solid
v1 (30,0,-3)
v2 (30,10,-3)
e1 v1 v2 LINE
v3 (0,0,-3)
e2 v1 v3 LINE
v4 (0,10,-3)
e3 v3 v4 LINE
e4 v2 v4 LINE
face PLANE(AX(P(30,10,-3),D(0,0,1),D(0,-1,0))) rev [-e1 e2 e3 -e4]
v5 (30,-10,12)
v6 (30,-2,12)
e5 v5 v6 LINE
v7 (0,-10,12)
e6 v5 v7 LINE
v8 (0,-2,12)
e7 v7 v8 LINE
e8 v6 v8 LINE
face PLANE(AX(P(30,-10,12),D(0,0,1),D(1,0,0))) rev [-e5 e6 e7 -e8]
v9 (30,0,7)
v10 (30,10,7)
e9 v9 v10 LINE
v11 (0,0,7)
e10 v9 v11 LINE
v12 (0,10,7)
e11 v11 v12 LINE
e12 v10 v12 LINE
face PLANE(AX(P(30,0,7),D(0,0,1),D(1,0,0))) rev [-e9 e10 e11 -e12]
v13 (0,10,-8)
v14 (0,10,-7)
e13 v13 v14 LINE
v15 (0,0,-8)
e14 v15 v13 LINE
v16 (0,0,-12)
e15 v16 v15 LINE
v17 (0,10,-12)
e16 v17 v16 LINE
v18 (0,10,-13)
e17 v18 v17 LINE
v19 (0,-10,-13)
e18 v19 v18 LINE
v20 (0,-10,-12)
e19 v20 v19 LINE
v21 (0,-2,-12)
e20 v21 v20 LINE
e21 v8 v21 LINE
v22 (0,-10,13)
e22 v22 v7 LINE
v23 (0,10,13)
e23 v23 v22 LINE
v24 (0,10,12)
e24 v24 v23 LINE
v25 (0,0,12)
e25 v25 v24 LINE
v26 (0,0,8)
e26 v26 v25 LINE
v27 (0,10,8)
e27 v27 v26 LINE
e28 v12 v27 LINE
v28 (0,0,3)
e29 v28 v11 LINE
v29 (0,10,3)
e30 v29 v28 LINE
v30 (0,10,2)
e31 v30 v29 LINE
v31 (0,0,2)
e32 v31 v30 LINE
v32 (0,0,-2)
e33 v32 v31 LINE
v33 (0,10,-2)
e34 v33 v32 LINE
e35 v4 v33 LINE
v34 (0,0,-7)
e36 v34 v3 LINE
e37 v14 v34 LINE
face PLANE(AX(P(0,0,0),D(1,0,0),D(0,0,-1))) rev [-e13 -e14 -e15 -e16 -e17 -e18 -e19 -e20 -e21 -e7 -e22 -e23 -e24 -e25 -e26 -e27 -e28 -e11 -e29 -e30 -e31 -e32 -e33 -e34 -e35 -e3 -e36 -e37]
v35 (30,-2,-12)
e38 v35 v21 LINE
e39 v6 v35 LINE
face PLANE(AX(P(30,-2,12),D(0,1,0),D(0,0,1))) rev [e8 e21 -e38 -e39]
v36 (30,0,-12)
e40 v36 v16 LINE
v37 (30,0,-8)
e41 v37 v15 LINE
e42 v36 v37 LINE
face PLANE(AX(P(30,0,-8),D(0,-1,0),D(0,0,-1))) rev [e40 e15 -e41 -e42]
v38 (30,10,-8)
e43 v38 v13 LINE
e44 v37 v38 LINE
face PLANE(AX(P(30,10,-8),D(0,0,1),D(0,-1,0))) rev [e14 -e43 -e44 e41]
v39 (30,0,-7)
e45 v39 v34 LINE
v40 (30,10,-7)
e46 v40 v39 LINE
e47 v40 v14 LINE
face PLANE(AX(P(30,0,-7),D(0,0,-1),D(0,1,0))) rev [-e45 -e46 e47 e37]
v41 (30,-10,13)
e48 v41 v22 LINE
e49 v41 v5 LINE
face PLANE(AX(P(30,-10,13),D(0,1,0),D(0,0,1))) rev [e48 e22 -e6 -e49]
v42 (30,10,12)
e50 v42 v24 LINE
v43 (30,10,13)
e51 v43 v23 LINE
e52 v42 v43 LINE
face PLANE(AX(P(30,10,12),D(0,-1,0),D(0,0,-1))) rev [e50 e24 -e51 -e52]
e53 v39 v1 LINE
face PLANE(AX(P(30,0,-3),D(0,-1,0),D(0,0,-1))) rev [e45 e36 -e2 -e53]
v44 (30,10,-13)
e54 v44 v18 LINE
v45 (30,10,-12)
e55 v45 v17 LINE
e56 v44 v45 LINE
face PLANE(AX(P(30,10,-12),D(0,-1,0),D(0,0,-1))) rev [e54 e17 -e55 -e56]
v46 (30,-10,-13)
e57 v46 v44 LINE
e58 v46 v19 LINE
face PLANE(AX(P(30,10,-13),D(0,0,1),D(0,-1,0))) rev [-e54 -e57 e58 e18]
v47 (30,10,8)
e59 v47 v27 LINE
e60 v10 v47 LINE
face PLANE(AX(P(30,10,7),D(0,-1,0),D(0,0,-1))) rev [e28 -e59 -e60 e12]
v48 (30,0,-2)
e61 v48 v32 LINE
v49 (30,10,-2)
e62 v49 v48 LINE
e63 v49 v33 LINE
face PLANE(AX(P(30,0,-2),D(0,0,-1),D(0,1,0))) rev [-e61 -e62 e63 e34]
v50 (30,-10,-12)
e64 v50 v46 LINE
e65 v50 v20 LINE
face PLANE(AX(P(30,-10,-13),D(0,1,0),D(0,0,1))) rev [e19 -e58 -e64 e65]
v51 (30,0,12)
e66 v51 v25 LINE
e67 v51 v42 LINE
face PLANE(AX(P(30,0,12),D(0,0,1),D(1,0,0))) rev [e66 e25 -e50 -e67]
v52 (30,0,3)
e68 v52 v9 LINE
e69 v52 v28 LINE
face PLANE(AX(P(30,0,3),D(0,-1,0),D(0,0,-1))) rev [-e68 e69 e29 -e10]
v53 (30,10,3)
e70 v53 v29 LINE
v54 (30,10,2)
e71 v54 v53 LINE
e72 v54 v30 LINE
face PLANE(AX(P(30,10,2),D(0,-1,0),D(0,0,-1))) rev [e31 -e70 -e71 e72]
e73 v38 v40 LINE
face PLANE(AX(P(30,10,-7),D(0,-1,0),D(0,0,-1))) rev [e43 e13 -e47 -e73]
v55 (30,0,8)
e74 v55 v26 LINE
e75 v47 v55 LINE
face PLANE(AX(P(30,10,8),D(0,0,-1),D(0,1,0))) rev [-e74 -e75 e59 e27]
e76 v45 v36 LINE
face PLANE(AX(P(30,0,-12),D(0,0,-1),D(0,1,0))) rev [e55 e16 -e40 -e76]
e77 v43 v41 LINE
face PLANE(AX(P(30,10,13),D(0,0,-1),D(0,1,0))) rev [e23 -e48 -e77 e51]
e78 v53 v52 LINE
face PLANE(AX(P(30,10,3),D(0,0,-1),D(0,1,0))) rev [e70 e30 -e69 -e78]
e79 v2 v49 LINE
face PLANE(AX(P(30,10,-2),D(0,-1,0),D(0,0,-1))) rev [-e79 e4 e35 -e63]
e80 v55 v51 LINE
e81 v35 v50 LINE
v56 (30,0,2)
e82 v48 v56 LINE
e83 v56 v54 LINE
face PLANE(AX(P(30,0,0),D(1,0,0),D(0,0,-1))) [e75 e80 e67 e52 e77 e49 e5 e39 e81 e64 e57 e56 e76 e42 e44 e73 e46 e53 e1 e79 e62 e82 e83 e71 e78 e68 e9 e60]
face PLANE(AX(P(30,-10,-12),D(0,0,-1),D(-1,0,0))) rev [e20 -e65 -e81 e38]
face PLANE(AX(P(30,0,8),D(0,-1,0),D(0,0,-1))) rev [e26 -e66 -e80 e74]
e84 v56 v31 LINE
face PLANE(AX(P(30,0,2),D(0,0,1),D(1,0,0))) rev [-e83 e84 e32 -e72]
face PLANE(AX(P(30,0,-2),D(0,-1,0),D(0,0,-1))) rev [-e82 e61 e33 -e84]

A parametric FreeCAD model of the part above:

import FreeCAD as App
import Part
import Sketcher


def add_polygon(sketch, points):
    """Adds a closed chain of lines whose ends are joined by coincident constraints."""
    first, n = sketch.GeometryCount, len(points)
    for a, b in zip(points, points[1:] + points[:1]):
        sketch.addGeometry(Part.LineSegment(App.Vector(*a, 0), App.Vector(*b, 0)), False)
    for i in range(n):
        sketch.addConstraint(Sketcher.Constraint("Coincident", first + i, 2, first + (i + 1) % n, 1))

doc = App.newDocument("Part")
body = doc.addObject("PartDesign::Body", "Body")

sketch1 = doc.addObject("Sketcher::SketchObject", "Sketch")
body.addObject(sketch1)
sketch1.AttachmentSupport = (doc.YZ_Plane, [""])
sketch1.MapMode = "FlatFace"
add_polygon(sketch1, [(0, -2), (0, 2), (10, 2), (10, 3), (0, 3), (0, 7), (10, 7), (10, 8), (0, 8), (0, 12), (10, 12), (10, 13), (-10, 13), (-10, 12), (-2, 12), (-2, -12), (-10, -12), (-10, -13), (10, -13), (10, -12), (0, -12), (0, -8), (10, -8), (10, -7), (0, -7), (0, -3), (10, -3), (10, -2)])
sketch1.addConstraint([
    Sketcher.Constraint("Vertical", 0),
    Sketcher.Constraint("Horizontal", 1),
    Sketcher.Constraint("Vertical", 2),
    Sketcher.Constraint("Horizontal", 3),
    Sketcher.Constraint("Vertical", 4),
    Sketcher.Constraint("Horizontal", 5),
    Sketcher.Constraint("Vertical", 6),
    Sketcher.Constraint("Horizontal", 7),
    Sketcher.Constraint("Vertical", 8),
    Sketcher.Constraint("Horizontal", 9),
    Sketcher.Constraint("Vertical", 10),
    Sketcher.Constraint("Horizontal", 11),
    Sketcher.Constraint("Vertical", 12),
    Sketcher.Constraint("Horizontal", 13),
    Sketcher.Constraint("Vertical", 14),
    Sketcher.Constraint("Horizontal", 15),
    Sketcher.Constraint("Vertical", 16),
    Sketcher.Constraint("Horizontal", 17),
    Sketcher.Constraint("Vertical", 18),
    Sketcher.Constraint("Horizontal", 19),
    Sketcher.Constraint("Vertical", 20),
    Sketcher.Constraint("Horizontal", 21),
    Sketcher.Constraint("Vertical", 22),
    Sketcher.Constraint("Horizontal", 23),
    Sketcher.Constraint("Vertical", 24),
    Sketcher.Constraint("Horizontal", 25),
    Sketcher.Constraint("Vertical", 26),
    Sketcher.Constraint("Horizontal", 27),
    Sketcher.Constraint("Symmetric", 9, 2, 15, 2, -1, 1),
    Sketcher.Constraint("Symmetric", 11, 2, 17, 2, -1, 1),
    Sketcher.Constraint("Symmetric", 8, 2, 19, 2, -1, 1),
    Sketcher.Constraint("Symmetric", 4, 2, 23, 2, -1, 1),
    Sketcher.Constraint("Symmetric", 0, 2, 27, 2, -1, 1),
    Sketcher.Constraint("Symmetric", 9, 2, 12, 2, -2),
    Sketcher.Constraint("Symmetric", 7, 2, 20, 2, -1),
    Sketcher.Constraint("Symmetric", 3, 2, 24, 2, -1),
    Sketcher.Constraint("Vertical", 2, 2, 5, 2),
    Sketcher.Constraint("Vertical", 6, 2, 9, 2),
    Sketcher.Constraint("Vertical", 18, 2, 21, 2),
    Sketcher.Constraint("Vertical", 22, 2, 25, 2),
    Sketcher.Constraint("Equal", 0, 4),
    Sketcher.Constraint("Equal", 2, 6),
    Sketcher.Constraint("Equal", 4, 8),
    Sketcher.Constraint("Equal", 6, 10),
    Sketcher.Constraint("DistanceX", 1, 1, 1, 2, 10.0),
    Sketcher.Constraint("DistanceX", 13, 1, 13, 2, 8.0),
    Sketcher.Constraint("DistanceY", 0, 1, 0, 2, 4.0),
    Sketcher.Constraint("DistanceY", 2, 1, 2, 2, 1.0),
])
pad1 = doc.addObject("PartDesign::Pad", "Pad")
body.addObject(pad1)
pad1.Profile = sketch1
pad1.Length = 30

doc.recompute()
